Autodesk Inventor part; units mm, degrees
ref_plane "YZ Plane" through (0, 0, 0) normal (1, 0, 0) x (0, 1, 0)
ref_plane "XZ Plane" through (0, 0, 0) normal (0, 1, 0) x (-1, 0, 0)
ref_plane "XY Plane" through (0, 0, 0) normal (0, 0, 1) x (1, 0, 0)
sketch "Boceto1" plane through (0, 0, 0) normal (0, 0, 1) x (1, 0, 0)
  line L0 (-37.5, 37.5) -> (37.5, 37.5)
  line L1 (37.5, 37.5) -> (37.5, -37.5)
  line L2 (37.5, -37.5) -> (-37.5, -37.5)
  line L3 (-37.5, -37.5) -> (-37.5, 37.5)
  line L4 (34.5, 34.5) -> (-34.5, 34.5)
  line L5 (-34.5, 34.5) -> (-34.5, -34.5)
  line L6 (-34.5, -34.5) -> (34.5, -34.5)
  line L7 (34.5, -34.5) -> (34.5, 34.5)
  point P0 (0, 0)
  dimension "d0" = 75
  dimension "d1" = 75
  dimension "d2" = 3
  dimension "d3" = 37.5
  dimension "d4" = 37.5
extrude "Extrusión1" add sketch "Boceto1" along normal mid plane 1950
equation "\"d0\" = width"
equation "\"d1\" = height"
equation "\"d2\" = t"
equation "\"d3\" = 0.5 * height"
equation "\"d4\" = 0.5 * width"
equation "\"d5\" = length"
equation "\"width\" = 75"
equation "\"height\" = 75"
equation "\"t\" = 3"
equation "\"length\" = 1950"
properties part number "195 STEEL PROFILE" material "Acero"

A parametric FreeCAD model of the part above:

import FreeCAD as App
import Part
import Sketcher

V = App.Vector

doc = App.newDocument("Part")
params = doc.addObject("Spreadsheet::Sheet", "Params")
for row, (alias, value) in enumerate([
    ("sketch1_width", "75 mm"),
    ("pad1_length", "1950 mm"),
], start=1):
    params.set(f"A{row}", alias)
    params.set(f"B{row}", "=" + value)
    params.setAlias(f"B{row}", alias)

body = doc.addObject("PartDesign::Body", "Body")

sketch1 = body.newObject("Sketcher::SketchObject", "Sketch")
sketch1.AttachmentSupport = (doc.getObject("XY_Plane"), [""])
sketch1.MapMode = "FlatFace"
sketch1.addGeometry([
    Part.LineSegment(V(38, 38, 0), V(-38, 38, 0)),
    Part.LineSegment(V(-38, 38, 0), V(-38, -38, 0)),
    Part.LineSegment(V(-38, -38, 0), V(38, -38, 0)),
    Part.LineSegment(V(38, -38, 0), V(38, 38, 0)),
    Part.LineSegment(V(-34, 34, 0), V(34, 34, 0)),
    Part.LineSegment(V(34, 34, 0), V(34, -34, 0)),
    Part.LineSegment(V(34, -34, 0), V(-34, -34, 0)),
    Part.LineSegment(V(-34, -34, 0), V(-34, 34, 0)),
], False)
sketch1.addConstraint([
    Sketcher.Constraint("Coincident", 0, 2, 1, 1),
    Sketcher.Constraint("Coincident", 1, 2, 2, 1),
    Sketcher.Constraint("Coincident", 2, 2, 3, 1),
    Sketcher.Constraint("Coincident", 3, 2, 0, 1),
    Sketcher.Constraint("Coincident", 4, 2, 5, 1),
    Sketcher.Constraint("Coincident", 5, 2, 6, 1),
    Sketcher.Constraint("Coincident", 6, 2, 7, 1),
    Sketcher.Constraint("Coincident", 7, 2, 4, 1),
    Sketcher.Constraint("Horizontal", 0),
    Sketcher.Constraint("Vertical", 1),
    Sketcher.Constraint("Horizontal", 2),
    Sketcher.Constraint("Vertical", 3),
    Sketcher.Constraint("Horizontal", 4),
    Sketcher.Constraint("Vertical", 5),
    Sketcher.Constraint("Horizontal", 6),
    Sketcher.Constraint("Vertical", 7),
    Sketcher.Constraint("Symmetric", 0, 2, 2, 2, -1, 1),
    Sketcher.Constraint("Symmetric", 4, 2, 6, 2, -1, 1),
    Sketcher.Constraint("Equal", 2, 1),
    Sketcher.Constraint("Equal", 6, 5),
    Sketcher.Constraint("DistanceX", 0, 2, 0, 1, 75.0),
    Sketcher.Constraint("DistanceX", 4, 2, 3, 2, 3.0),
])
sketch1.setExpression("Constraints[20]", "Params.sketch1_width")
pad1 = body.newObject("PartDesign::Pad", "Pad")
pad1.Profile = sketch1
pad1.setExpression("Length", "Params.pad1_length")
pad1.Midplane = True

doc.recompute()
